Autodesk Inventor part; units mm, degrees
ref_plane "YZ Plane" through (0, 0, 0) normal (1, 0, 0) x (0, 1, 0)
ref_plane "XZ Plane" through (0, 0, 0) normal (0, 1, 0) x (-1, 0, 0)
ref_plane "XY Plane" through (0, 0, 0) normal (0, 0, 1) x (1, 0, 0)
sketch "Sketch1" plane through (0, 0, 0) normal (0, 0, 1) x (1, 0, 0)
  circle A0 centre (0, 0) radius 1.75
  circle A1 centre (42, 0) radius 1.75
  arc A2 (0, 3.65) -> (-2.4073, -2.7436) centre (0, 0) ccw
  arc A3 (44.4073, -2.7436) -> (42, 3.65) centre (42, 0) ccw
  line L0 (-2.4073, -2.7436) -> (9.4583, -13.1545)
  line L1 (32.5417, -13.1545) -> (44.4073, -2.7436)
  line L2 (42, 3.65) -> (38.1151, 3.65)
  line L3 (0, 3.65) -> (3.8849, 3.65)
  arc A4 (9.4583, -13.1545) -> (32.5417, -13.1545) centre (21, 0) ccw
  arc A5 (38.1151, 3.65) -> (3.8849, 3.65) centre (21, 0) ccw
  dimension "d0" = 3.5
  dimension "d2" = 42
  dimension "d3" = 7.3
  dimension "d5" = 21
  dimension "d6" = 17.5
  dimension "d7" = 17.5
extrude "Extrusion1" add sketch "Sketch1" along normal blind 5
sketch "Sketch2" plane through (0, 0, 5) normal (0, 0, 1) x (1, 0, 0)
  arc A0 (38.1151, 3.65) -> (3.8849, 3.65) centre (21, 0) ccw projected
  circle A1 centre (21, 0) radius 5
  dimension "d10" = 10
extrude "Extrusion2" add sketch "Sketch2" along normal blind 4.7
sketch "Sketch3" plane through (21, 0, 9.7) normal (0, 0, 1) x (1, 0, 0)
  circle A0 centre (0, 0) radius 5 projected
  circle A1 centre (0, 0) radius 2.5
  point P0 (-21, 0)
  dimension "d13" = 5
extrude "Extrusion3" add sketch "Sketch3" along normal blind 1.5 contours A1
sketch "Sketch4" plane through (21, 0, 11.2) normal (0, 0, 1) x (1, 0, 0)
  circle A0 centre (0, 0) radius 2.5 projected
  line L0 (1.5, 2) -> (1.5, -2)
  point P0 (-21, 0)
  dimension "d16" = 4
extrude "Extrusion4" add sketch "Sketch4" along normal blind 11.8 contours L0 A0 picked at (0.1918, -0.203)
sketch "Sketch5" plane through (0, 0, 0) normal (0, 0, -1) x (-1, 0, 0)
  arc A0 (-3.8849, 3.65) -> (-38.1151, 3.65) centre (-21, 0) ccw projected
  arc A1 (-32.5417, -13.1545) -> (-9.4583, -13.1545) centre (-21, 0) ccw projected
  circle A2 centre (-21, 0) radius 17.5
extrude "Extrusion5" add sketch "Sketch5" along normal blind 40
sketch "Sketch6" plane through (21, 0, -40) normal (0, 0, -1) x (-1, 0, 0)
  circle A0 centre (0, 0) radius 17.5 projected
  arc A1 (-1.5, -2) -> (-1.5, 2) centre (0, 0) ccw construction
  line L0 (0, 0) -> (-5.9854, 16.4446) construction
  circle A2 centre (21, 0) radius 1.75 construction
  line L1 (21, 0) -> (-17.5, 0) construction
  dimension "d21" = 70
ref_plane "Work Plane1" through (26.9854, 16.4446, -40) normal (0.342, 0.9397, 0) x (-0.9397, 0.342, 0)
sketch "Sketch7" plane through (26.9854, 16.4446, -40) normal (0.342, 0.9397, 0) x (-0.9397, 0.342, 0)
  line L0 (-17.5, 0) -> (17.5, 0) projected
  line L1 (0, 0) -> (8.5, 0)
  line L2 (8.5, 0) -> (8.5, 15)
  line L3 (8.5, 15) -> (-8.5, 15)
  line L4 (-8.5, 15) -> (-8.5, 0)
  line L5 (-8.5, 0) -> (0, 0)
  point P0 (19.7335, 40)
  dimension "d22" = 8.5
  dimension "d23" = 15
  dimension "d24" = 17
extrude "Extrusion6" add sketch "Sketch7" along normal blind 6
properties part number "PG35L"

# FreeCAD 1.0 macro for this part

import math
import FreeCAD as App
import Part
import Sketcher

V = App.Vector
Q = App.Units.Quantity


def add_polygon(sketch, points):
    """Adds a closed chain of lines whose ends are joined by coincident constraints."""
    first, n = sketch.GeometryCount, len(points)
    for a, b in zip(points, points[1:] + points[:1]):
        sketch.addGeometry(Part.LineSegment(App.Vector(*a, 0), App.Vector(*b, 0)), False)
    for i in range(n):
        sketch.addConstraint(Sketcher.Constraint("Coincident", first + i, 2, first + (i + 1) % n, 1))

doc = App.newDocument("Part")
body = doc.addObject("PartDesign::Body", "Body")
body.AllowCompound = True

# Sketch on XY plane
sketch1 = doc.addObject("Sketcher::SketchObject", "Sketch")
body.addObject(sketch1)
sketch1.AttachmentSupport = (doc.XY_Plane, [""])
sketch1.MapMode = "FlatFace"
sketch1.addGeometry([
    Part.LineSegment(V(3.9, 3.6, 0), V(0, 3.6, 0)),  # 0
    Part.ArcOfCircle(Part.Circle(V(0, 0, 0), V(0, 0, 1), 3.6), math.radians(90), math.radians(229)),  # 1
    Part.LineSegment(V(-2.4, -2.7, 0), V(9.5, -13.2, 0)),  # 2
    Part.ArcOfCircle(Part.Circle(V(21, 0, 0), V(0, 0, 1), 17.5), math.radians(-131), math.radians(-49)),  # 3
    Part.LineSegment(V(32.5, -13.2, 0), V(44.4, -2.7, 0)),  # 4
    Part.ArcOfCircle(Part.Circle(V(42, 0, 0), V(0, 0, 1), 3.6), math.radians(-49), math.radians(90)),  # 5
    Part.LineSegment(V(42, 3.6, 0), V(38.1, 3.6, 0)),  # 6
    Part.ArcOfCircle(Part.Circle(V(21, 0, 0), V(0, 0, 1), 17.5), math.radians(12), math.radians(168)),  # 7
    Part.Circle(V(0, 0, 0), V(0, 0, 1), 1.8),  # 8
    Part.Circle(V(42, 0, 0), V(0, 0, 1), 1.8),  # 9
], False)
sketch1.addConstraint([
    Sketcher.Constraint("Tangent", 0, 2, 1, 1),
    Sketcher.Constraint("Tangent", 1, 2, 2, 1),
    Sketcher.Constraint("Tangent", 2, 2, 3, 1),
    Sketcher.Constraint("Tangent", 3, 2, 4, 1),
    Sketcher.Constraint("Tangent", 4, 2, 5, 1),
    Sketcher.Constraint("Tangent", 5, 2, 6, 1),
    Sketcher.Constraint("Coincident", 6, 2, 7, 1),
    Sketcher.Constraint("Coincident", 7, 2, 0, 1),
    Sketcher.Constraint("Horizontal", 0),
    Sketcher.Constraint("Horizontal", 6),
    Sketcher.Constraint("Coincident", 1, 3, -1, 1),
    Sketcher.Constraint("Coincident", 8, 3, -1, 1),
    Sketcher.Constraint("Coincident", 7, 3, 3, 3),
    Sketcher.Constraint("Coincident", 9, 3, 5, 3),
    Sketcher.Constraint("Equal", 1, 5),
    Sketcher.Constraint("Equal", 3, 7),
    Sketcher.Constraint("Equal", 8, 9),
    Sketcher.Constraint("PointOnObject", 3, 3, -1),
    Sketcher.Constraint("PointOnObject", 5, 3, -1),
    Sketcher.Constraint("Horizontal", 2, 2, 3, 2),
    Sketcher.Constraint("Diameter", 8, Q("3.5 mm")),
    Sketcher.Constraint("Radius", 3, Q("17.5 mm")),
    Sketcher.Constraint("Radius", 1, Q("3.65 mm")),
    Sketcher.Constraint("DistanceX", -1, 1, 3, 3, Q("21 mm")),
])
pad1 = doc.addObject("PartDesign::Pad", "Pad")
body.addObject(pad1)
pad1.Profile = sketch1
pad1.Length = 5

# Sketch on XY plane
sketch2 = doc.addObject("Sketcher::SketchObject", "Sketch001")
body.addObject(sketch2)
sketch2.AttachmentSupport = (doc.XY_Plane, [""])
sketch2.MapMode = "FlatFace"
sketch2.AttachmentOffset = App.Placement(V(0, 0, 5), App.Rotation())
sketch2.addGeometry(Part.Circle(V(21, 0, 0), V(0, 0, 1), 5), False)
sketch2.addConstraint([
    Sketcher.Constraint("PointOnObject", 0, 3, -1),
    Sketcher.Constraint("Diameter", 0, Q("10 mm")),
    Sketcher.Constraint("DistanceX", -1, 1, 0, 3, Q("21 mm")),
])
pad2 = doc.addObject("PartDesign::Pad", "Pad001")
body.addObject(pad2)
pad2.Profile = sketch2
pad2.Length = 4.7

# Sketch on XY plane
sketch3 = doc.addObject("Sketcher::SketchObject", "Sketch002")
body.addObject(sketch3)
sketch3.AttachmentSupport = (doc.XY_Plane, [""])
sketch3.MapMode = "FlatFace"
sketch3.AttachmentOffset = App.Placement(V(0, 0, 9.7), App.Rotation())
sketch3.addGeometry(Part.Circle(V(21, 0, 0), V(0, 0, 1), 2.5), False)
sketch3.addConstraint([
    Sketcher.Constraint("PointOnObject", 0, 3, -1),
    Sketcher.Constraint("Diameter", 0, Q("5 mm")),
    Sketcher.Constraint("DistanceX", -1, 1, 0, 3, Q("21 mm")),
])
pad3 = doc.addObject("PartDesign::Pad", "Pad002")
body.addObject(pad3)
pad3.Profile = sketch3
pad3.Length = 1.5

# Sketch on XY plane
sketch4 = doc.addObject("Sketcher::SketchObject", "Sketch003")
body.addObject(sketch4)
sketch4.AttachmentSupport = (doc.XY_Plane, [""])
sketch4.MapMode = "FlatFace"
sketch4.AttachmentOffset = App.Placement(V(0, 0, 11.2), App.Rotation())
sketch4.addGeometry([
    Part.LineSegment(V(22.5, -2, 0), V(22.5, 2, 0)),
    Part.ArcOfCircle(Part.Circle(V(21, 0, 0), V(0, 0, 1), 2.5), math.radians(53), math.radians(307)),
], False)
sketch4.addConstraint([
    Sketcher.Constraint("Coincident", 0, 1, 1, 2),
    Sketcher.Constraint("Coincident", 1, 1, 0, 2),
    Sketcher.Constraint("Vertical", 0),
    Sketcher.Constraint("PointOnObject", 1, 3, -1),
    Sketcher.Constraint("DistanceY", 0, 1, 0, 2, Q("4 mm")),
    Sketcher.Constraint("Radius", 1, Q("2.5 mm")),
    Sketcher.Constraint("DistanceX", -1, 1, 1, 3, Q("21 mm")),
])
pad4 = doc.addObject("PartDesign::Pad", "Pad003")
body.addObject(pad4)
pad4.Profile = sketch4
pad4.Length = 11.8

# Sketch on XY plane
sketch5 = doc.addObject("Sketcher::SketchObject", "Sketch004")
body.addObject(sketch5)
sketch5.AttachmentSupport = (doc.XY_Plane, [""])
sketch5.MapMode = "FlatFace"
sketch5.addGeometry(Part.Circle(V(21, 0, 0), V(0, 0, 1), 17), False)
sketch5.addConstraint([
    Sketcher.Constraint("PointOnObject", 0, 3, -1),
    Sketcher.Constraint("Diameter", 0, Q("35 mm")),
    Sketcher.Constraint("DistanceX", -1, 1, 0, 3, Q("21 mm")),
])
pad5 = doc.addObject("PartDesign::Pad", "Pad004")
body.addObject(pad5)
pad5.Profile = sketch5
pad5.Length = 40
pad5.Reversed = True

# Sketch on an angled plane
sketch6 = doc.addObject("Sketcher::SketchObject", "Sketch005")
body.addObject(sketch6)
sketch6.Placement = App.Placement(V(26.9854, 16.4446, -40), App.Rotation(V(-0.939692621, 0.342020143, 0), V(0, 0, 1), V(0.342020143, 0.939692621, 0), "ZXY"))
add_polygon(sketch6, [(-9, 15), (-9, 0), (9, 0), (9, 15)])  # lines 0-3
sketch6.addConstraint([
    Sketcher.Constraint("Vertical", 0),
    Sketcher.Constraint("Horizontal", 1),
    Sketcher.Constraint("Vertical", 2),
    Sketcher.Constraint("Horizontal", 3),
    Sketcher.Constraint("Symmetric", 0, 2, 1, 2, -1, 1),
    Sketcher.Constraint("DistanceX", 1, 1, 1, 2, Q("17 mm")),
    Sketcher.Constraint("DistanceY", 0, 2, 0, 1, Q("15 mm")),
])
pad6 = doc.addObject("PartDesign::Pad", "Pad005")
body.addObject(pad6)
pad6.Profile = sketch6
pad6.Length = 6

doc.recompute()
